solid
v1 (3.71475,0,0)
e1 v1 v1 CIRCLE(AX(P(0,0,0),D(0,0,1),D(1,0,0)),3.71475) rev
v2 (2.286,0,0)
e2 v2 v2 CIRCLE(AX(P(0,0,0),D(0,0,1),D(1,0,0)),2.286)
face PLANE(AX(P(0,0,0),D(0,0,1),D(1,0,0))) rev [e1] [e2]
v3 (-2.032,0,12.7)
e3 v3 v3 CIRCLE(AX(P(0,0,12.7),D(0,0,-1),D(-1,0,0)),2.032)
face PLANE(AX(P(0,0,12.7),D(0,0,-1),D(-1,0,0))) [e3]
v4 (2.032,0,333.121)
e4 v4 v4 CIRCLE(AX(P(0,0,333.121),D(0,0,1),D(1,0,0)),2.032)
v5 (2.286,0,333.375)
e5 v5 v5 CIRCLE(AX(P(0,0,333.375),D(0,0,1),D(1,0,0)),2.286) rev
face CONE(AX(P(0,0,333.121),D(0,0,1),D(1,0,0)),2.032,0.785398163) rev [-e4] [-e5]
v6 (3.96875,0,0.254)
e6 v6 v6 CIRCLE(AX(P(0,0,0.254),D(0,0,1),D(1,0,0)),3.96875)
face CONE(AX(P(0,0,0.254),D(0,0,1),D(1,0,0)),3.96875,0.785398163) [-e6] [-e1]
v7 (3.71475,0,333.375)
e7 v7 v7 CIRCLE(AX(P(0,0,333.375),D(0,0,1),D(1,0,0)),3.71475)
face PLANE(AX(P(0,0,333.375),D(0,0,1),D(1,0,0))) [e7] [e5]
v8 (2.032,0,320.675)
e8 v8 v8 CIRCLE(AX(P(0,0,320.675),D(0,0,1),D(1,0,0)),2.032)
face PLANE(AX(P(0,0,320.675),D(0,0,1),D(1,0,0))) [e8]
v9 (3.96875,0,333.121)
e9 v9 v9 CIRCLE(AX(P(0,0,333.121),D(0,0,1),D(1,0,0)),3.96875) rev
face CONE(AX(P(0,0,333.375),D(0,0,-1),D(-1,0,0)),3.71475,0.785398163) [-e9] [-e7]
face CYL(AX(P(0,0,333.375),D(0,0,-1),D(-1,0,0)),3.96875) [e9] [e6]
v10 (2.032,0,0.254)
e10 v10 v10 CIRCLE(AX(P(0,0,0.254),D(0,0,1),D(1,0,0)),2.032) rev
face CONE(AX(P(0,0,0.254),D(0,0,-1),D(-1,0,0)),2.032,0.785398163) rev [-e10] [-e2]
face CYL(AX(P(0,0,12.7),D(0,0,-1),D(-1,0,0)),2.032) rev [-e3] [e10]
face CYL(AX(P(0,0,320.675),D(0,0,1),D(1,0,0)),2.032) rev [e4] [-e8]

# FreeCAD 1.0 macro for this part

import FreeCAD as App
import Part
import Sketcher
from FreeCAD import Vector
Q = App.Units.Quantity


def edges_at(feature, points):
    """Names of the edges that pass closest to the given points."""
    edges = feature.Shape.Edges
    near = lambda p: min(range(len(edges)), key=lambda i: edges[i].distToShape(Part.Vertex(*p))[0])
    return sorted({f"Edge{near(p) + 1}" for p in points})

doc = App.newDocument("Part")
body = doc.addObject("PartDesign::Body", "Body")

sketch1 = doc.addObject("Sketcher::SketchObject", "Sketch")
body.addObject(sketch1)
sketch1.AttachmentSupport = (doc.XY_Plane, [""])
sketch1.MapMode = "FlatFace"
sketch1.addGeometry(Part.Circle(Vector(0, 0, 0), Vector(0, 0, 1), 3.96875), False)
sketch1.addConstraint([
    Sketcher.Constraint("Coincident", 0, 3, -1, 1),
    Sketcher.Constraint("Diameter", 0, Q("0.3125 in")),
])
pad1 = doc.addObject("PartDesign::Pad", "Pad")
body.addObject(pad1)
pad1.Profile = sketch1
pad1.Length = Q("13.125 in")

sketch2 = doc.addObject("Sketcher::SketchObject", "Sketch001")
body.addObject(sketch2)
sketch2.AttachmentSupport = (doc.XY_Plane, [""])
sketch2.MapMode = "FlatFace"
sketch2.AttachmentOffset = App.Placement(Vector(0, 0, 13.125 * 25.4), App.Rotation())
sketch2.addGeometry(Part.Circle(Vector(0, 0, 0), Vector(0, 0, 1), 2.032), False)
sketch2.addConstraint([
    Sketcher.Constraint("Coincident", 0, 3, -1, 1),
    Sketcher.Constraint("Diameter", 0, Q("0.16 in")),
])
pocket1 = doc.addObject("PartDesign::Pocket", "Pocket")
body.addObject(pocket1)
pocket1.Profile = sketch2
pocket1.Length = Q("0.5 in")

sketch3 = doc.addObject("Sketcher::SketchObject", "Sketch002")
body.addObject(sketch3)
sketch3.AttachmentSupport = (doc.XY_Plane, [""])
sketch3.MapMode = "FlatFace"
sketch3.AttachmentOffset = App.Placement(Vector(0, 0, 0.5 * 25.4), App.Rotation())
sketch3.addGeometry(Part.Circle(Vector(0, 0, 0), Vector(0, 0, 1), 2.032), False)
sketch3.addConstraint([
    Sketcher.Constraint("Coincident", 0, 3, -1, 1),
    Sketcher.Constraint("Diameter", 0, Q("0.16 in")),
])
pocket2 = doc.addObject("PartDesign::Pocket", "Pocket001")
body.addObject(pocket2)
pocket2.Profile = sketch3
pocket2.Length = Q("0.5 in")
doc.recompute()

chamfer = doc.addObject("PartDesign::Chamfer", "Chamfer")
body.addObject(chamfer)
chamfer.Base = (pocket2, edges_at(pocket2, [
    (-2.032, 0, 0),
    (-3.969, 0, 0),
    (-3.969, 0, 333.375),
    (-2.032, 0, 333.375),
]))
chamfer.Size = Q("0.01 in")

doc.recompute()
